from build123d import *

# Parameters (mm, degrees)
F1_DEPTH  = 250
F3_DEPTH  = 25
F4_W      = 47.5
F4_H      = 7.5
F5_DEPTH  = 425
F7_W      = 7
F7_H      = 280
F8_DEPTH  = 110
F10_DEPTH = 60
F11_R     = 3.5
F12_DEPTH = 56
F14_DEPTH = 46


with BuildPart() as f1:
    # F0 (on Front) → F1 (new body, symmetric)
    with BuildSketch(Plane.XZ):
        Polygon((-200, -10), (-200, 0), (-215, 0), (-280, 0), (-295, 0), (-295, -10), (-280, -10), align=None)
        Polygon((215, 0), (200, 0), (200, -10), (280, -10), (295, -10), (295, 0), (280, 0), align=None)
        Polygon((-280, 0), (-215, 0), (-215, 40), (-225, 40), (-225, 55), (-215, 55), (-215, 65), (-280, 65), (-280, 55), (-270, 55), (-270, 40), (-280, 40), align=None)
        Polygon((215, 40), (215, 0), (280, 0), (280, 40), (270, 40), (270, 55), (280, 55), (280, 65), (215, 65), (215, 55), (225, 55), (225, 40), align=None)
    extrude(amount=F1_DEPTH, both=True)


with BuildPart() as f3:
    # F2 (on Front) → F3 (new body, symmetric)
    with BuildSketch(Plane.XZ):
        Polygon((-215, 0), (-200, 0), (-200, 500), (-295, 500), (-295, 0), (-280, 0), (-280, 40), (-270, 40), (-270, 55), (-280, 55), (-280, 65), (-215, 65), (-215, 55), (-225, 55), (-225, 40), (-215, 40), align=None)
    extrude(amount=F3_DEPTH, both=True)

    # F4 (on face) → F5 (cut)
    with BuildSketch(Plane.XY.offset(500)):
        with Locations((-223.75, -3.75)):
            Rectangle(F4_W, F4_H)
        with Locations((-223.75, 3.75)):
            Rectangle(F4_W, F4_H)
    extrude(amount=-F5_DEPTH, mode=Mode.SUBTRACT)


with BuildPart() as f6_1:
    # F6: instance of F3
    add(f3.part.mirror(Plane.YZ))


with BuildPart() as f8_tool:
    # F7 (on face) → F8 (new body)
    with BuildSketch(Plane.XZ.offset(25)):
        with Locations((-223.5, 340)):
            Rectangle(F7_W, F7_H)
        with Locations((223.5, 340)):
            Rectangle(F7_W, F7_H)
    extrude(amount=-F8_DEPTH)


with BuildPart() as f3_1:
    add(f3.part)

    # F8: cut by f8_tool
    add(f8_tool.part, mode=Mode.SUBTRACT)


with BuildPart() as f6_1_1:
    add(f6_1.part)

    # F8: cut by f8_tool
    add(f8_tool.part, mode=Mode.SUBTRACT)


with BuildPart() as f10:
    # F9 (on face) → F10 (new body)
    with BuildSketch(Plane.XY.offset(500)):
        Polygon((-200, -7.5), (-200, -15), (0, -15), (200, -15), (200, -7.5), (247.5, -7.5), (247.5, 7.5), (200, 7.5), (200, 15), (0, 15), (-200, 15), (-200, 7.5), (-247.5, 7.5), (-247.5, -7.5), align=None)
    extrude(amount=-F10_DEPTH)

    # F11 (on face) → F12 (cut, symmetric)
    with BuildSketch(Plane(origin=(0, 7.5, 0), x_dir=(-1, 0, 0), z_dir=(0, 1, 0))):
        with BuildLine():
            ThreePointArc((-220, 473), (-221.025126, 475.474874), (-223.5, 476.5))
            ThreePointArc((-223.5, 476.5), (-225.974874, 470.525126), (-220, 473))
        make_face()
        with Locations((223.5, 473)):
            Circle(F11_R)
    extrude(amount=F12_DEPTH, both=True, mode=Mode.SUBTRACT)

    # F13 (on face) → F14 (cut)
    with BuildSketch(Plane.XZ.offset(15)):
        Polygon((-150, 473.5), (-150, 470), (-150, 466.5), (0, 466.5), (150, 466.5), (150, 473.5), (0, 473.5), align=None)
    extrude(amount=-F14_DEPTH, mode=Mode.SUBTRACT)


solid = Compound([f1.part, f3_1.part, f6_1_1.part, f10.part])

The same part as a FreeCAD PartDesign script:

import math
import FreeCAD as App
import Part
import Sketcher

V = App.Vector
Q = App.Units.Quantity


def add_polygon(sketch, points):
    """Adds a closed chain of lines whose ends are joined by coincident constraints."""
    first, n = sketch.GeometryCount, len(points)
    for a, b in zip(points, points[1:] + points[:1]):
        sketch.addGeometry(Part.LineSegment(App.Vector(*a, 0), App.Vector(*b, 0)), False)
    for i in range(n):
        sketch.addConstraint(Sketcher.Constraint("Coincident", first + i, 2, first + (i + 1) % n, 1))

doc = App.newDocument("Part")
body = doc.addObject("PartDesign::Body", "Body")
body.AllowCompound = True

# Sketch on XZ plane
sketch1 = body.newObject("Sketcher::SketchObject", "Sketch")
sketch1.AttachmentSupport = (doc.getObject("XZ_Plane"), [""])
sketch1.MapMode = "FlatFace"
add_polygon(sketch1, [(-200, -10), (-200, 0), (-215, 0), (-215, 40), (-225, 40), (-225, 55), (-215, 55), (-215, 65), (-280, 65), (-280, 55), (-270, 55), (-270, 40), (-280, 40), (-280, 0), (-295, 0), (-295, -10)])  # lines 0-15
add_polygon(sketch1, [(200, 0), (200, -10), (295, -10), (295, 0), (280, 0), (280, 40), (270, 40), (270, 55), (280, 55), (280, 65), (215, 65), (215, 55), (225, 55), (225, 40), (215, 40), (215, 0)])  # lines 16-31
sketch1.addConstraint([
    Sketcher.Constraint("Vertical", 0),
    Sketcher.Constraint("Horizontal", 1),
    Sketcher.Constraint("Vertical", 2),
    Sketcher.Constraint("Horizontal", 3),
    Sketcher.Constraint("Vertical", 4),
    Sketcher.Constraint("Horizontal", 5),
    Sketcher.Constraint("Vertical", 6),
    Sketcher.Constraint("Horizontal", 7),
    Sketcher.Constraint("Vertical", 8),
    Sketcher.Constraint("Horizontal", 9),
    Sketcher.Constraint("Vertical", 10),
    Sketcher.Constraint("Horizontal", 11),
    Sketcher.Constraint("Vertical", 12),
    Sketcher.Constraint("Horizontal", 13),
    Sketcher.Constraint("Vertical", 14),
    Sketcher.Constraint("Horizontal", 15),
    Sketcher.Constraint("Vertical", 16),
    Sketcher.Constraint("Horizontal", 17),
    Sketcher.Constraint("Vertical", 18),
    Sketcher.Constraint("Horizontal", 19),
    Sketcher.Constraint("Vertical", 20),
    Sketcher.Constraint("Horizontal", 21),
    Sketcher.Constraint("Vertical", 22),
    Sketcher.Constraint("Horizontal", 23),
    Sketcher.Constraint("Vertical", 24),
    Sketcher.Constraint("Horizontal", 25),
    Sketcher.Constraint("Vertical", 26),
    Sketcher.Constraint("Horizontal", 27),
    Sketcher.Constraint("Vertical", 28),
    Sketcher.Constraint("Horizontal", 29),
    Sketcher.Constraint("Vertical", 30),
    Sketcher.Constraint("Horizontal", 31),
    Sketcher.Constraint("Symmetric", 13, 2, 18, 2, -1, 1),
    Sketcher.Constraint("Symmetric", 1, 2, 30, 2, -1, 1),
    Sketcher.Constraint("Symmetric", 15, 2, 16, 2, -2),
    Sketcher.Constraint("Symmetric", 12, 2, 19, 2, -2),
    Sketcher.Constraint("Symmetric", 10, 2, 21, 2, -2),
    Sketcher.Constraint("Symmetric", 8, 2, 23, 2, -2),
    Sketcher.Constraint("Symmetric", 6, 2, 25, 2, -2),
    Sketcher.Constraint("Symmetric", 4, 2, 27, 2, -2),
    Sketcher.Constraint("PointOnObject", 0, 2, -1),
    Sketcher.Constraint("Horizontal", 5, 2, 8, 2),
    Sketcher.Constraint("Horizontal", 3, 2, 10, 2),
    Sketcher.Constraint("Horizontal", 21, 2, 28, 2),
    Sketcher.Constraint("Vertical", 2, 2, 5, 2),
    Sketcher.Constraint("Vertical", 8, 2, 11, 2),
    Sketcher.Constraint("Equal", 5, 9),
    Sketcher.Constraint("Equal", 1, 13),
    Sketcher.Constraint("Equal", 29, 0),
    Sketcher.Constraint("Equal", 31, 4),
    Sketcher.Constraint("Equal", 0, 6),
    Sketcher.Constraint("DistanceX", 1, 2, 1, 1, Q("15 mm")),
    Sketcher.Constraint("DistanceX", 3, 2, 3, 1, Q("10 mm")),
    Sketcher.Constraint("DistanceX", 7, 2, 7, 1, Q("65 mm")),
    Sketcher.Constraint("DistanceY", 2, 1, 2, 2, Q("40 mm")),
    Sketcher.Constraint("DistanceX", 0, 2, -1, 1, Q("200 mm")),
])
pad1 = body.newObject("PartDesign::Pad", "Pad")
pad1.Profile = sketch1
pad1.Length = 500
pad1.Midplane = True
body2 = doc.addObject("PartDesign::Body", "Body001")

# Sketch on XZ plane
sketch2 = body2.newObject("Sketcher::SketchObject", "Sketch001")
sketch2.AttachmentSupport = (doc.getObject("XZ_Plane001"), [""])
sketch2.MapMode = "FlatFace"
add_polygon(sketch2, [(-215, 0), (-200, 0), (-200, 500), (-295, 500), (-295, 0), (-280, 0), (-280, 40), (-270, 40), (-270, 55), (-280, 55), (-280, 65), (-215, 65), (-215, 55), (-225, 55), (-225, 40), (-215, 40)])  # lines 0-15
sketch2.addConstraint([
    Sketcher.Constraint("Horizontal", 0),
    Sketcher.Constraint("Vertical", 1),
    Sketcher.Constraint("Horizontal", 2),
    Sketcher.Constraint("Vertical", 3),
    Sketcher.Constraint("Horizontal", 4),
    Sketcher.Constraint("Vertical", 5),
    Sketcher.Constraint("Horizontal", 6),
    Sketcher.Constraint("Vertical", 7),
    Sketcher.Constraint("Horizontal", 8),
    Sketcher.Constraint("Vertical", 9),
    Sketcher.Constraint("Horizontal", 10),
    Sketcher.Constraint("Vertical", 11),
    Sketcher.Constraint("Horizontal", 12),
    Sketcher.Constraint("Vertical", 13),
    Sketcher.Constraint("Horizontal", 14),
    Sketcher.Constraint("Vertical", 15),
    Sketcher.Constraint("PointOnObject", 0, 2, -1),
    Sketcher.Constraint("PointOnObject", 3, 2, -1),
    Sketcher.Constraint("Horizontal", 8, 2, 11, 2),
    Sketcher.Constraint("Horizontal", 6, 2, 13, 2),
    Sketcher.Constraint("Vertical", 5, 2, 8, 2),
    Sketcher.Constraint("Vertical", 11, 2, 14, 2),
    Sketcher.Constraint("Equal", 0, 4),
    Sketcher.Constraint("Equal", 8, 12),
    Sketcher.Constraint("Equal", 4, 7),
    Sketcher.Constraint("Equal", 14, 9),
    Sketcher.Constraint("DistanceX", 0, 1, 0, 2, Q("15 mm")),
    Sketcher.Constraint("DistanceX", 2, 2, 2, 1, Q("95 mm")),
    Sketcher.Constraint("DistanceX", 6, 1, 6, 2, Q("10 mm")),
    Sketcher.Constraint("DistanceY", 1, 1, 1, 2, Q("500 mm")),
    Sketcher.Constraint("DistanceY", 5, 1, 5, 2, Q("40 mm")),
    Sketcher.Constraint("DistanceX", 0, 2, -1, 1, Q("200 mm")),
])
pad2 = body2.newObject("PartDesign::Pad", "Pad001")
pad2.Profile = sketch2
pad2.Length = 50
pad2.Midplane = True

# Sketch on XY plane
sketch3 = body2.newObject("Sketcher::SketchObject", "Sketch002")
sketch3.AttachmentSupport = (doc.getObject("XY_Plane001"), [""])
sketch3.MapMode = "FlatFace"
sketch3.AttachmentOffset = App.Placement(V(0, 0, 500), App.Rotation())
add_polygon(sketch3, [(-248, -8), (-200, -8), (-200, 8), (-248, 8)])  # lines 0-3
sketch3.addConstraint([
    Sketcher.Constraint("Horizontal", 0),
    Sketcher.Constraint("Vertical", 1),
    Sketcher.Constraint("Horizontal", 2),
    Sketcher.Constraint("Vertical", 3),
    Sketcher.Constraint("DistanceY", 1, 1, 1, 2, Q("15 mm")),
    Sketcher.Constraint("DistanceX", 0, 1, 0, 2, Q("47.5 mm")),
    Sketcher.Constraint("DistanceX", 0, 2, -1, 1, Q("200 mm")),
    Sketcher.Constraint("DistanceY", 0, 2, -1, 1, Q("7.5 mm")),
])
pocket1 = body2.newObject("PartDesign::Pocket", "Pocket")
pocket1.Profile = sketch3
pocket1.Length = 425
body3 = doc.addObject("PartDesign::Body", "Body002")
doc.recompute()

mirroring = doc.addObject("Part::Mirroring", "Mirroring")
mirroring.Source = body2
mirroring.Base = V(0, 0, 0)
mirroring.Normal = V(1, 0, 0)
body3.BaseFeature = mirroring
doc.recompute()
body4 = doc.addObject("PartDesign::Body", "Body003")
body4.AllowCompound = True

# Sketch on XZ plane
sketch4 = body4.newObject("Sketcher::SketchObject", "Sketch003")
sketch4.AttachmentSupport = (doc.getObject("XZ_Plane003"), [""])
sketch4.MapMode = "FlatFace"
sketch4.AttachmentOffset = App.Placement(V(0, 0, 25), App.Rotation())
add_polygon(sketch4, [(-227, 480), (-227, 200), (-220, 200), (-220, 480)])  # lines 0-3
add_polygon(sketch4, [(220, 480), (220, 200), (227, 200), (227, 480)])  # lines 4-7
sketch4.addConstraint([
    Sketcher.Constraint("Vertical", 0),
    Sketcher.Constraint("Horizontal", 1),
    Sketcher.Constraint("Vertical", 2),
    Sketcher.Constraint("Horizontal", 3),
    Sketcher.Constraint("Vertical", 4),
    Sketcher.Constraint("Horizontal", 5),
    Sketcher.Constraint("Vertical", 6),
    Sketcher.Constraint("Horizontal", 7),
    Sketcher.Constraint("Symmetric", 1, 2, 4, 2, -2),
    Sketcher.Constraint("Symmetric", 3, 2, 6, 2, -2),
    Sketcher.Constraint("DistanceX", 1, 1, 1, 2, Q("7 mm")),
    Sketcher.Constraint("DistanceY", 0, 2, 0, 1, Q("280 mm")),
    Sketcher.Constraint("DistanceX", 0, 2, -1, 1, Q("227 mm")),
    Sketcher.Constraint("DistanceY", -1, 1, 0, 2, Q("200 mm")),
])
pad3 = body4.newObject("PartDesign::Pad", "Pad002")
pad3.Profile = sketch4
pad3.Length = 110
pad3.Reversed = True
doc.recompute()

body5 = doc.addObject("PartDesign::Body", "Body004")
body5.BaseFeature = body4
boolean = body2.newObject("PartDesign::Boolean", "Boolean")
boolean.Type = "Cut"
boolean.addObjects([body5])
doc.recompute()

boolean2 = body3.newObject("PartDesign::Boolean", "Boolean001")
boolean2.Type = "Cut"
boolean2.addObjects([body4])
body6 = doc.addObject("PartDesign::Body", "Body005")

# Sketch on XY plane
sketch5 = body6.newObject("Sketcher::SketchObject", "Sketch004")
sketch5.AttachmentSupport = (doc.getObject("XY_Plane005"), [""])
sketch5.MapMode = "FlatFace"
sketch5.AttachmentOffset = App.Placement(V(0, 0, 500), App.Rotation())
add_polygon(sketch5, [(-200, -8), (-200, -15), (200, -15), (200, -8), (248, -8), (248, 8), (200, 8), (200, 15), (-200, 15), (-200, 8), (-248, 8), (-248, -8)])  # lines 0-11
sketch5.addConstraint([
    Sketcher.Constraint("Vertical", 0),
    Sketcher.Constraint("Horizontal", 1),
    Sketcher.Constraint("Vertical", 2),
    Sketcher.Constraint("Horizontal", 3),
    Sketcher.Constraint("Vertical", 4),
    Sketcher.Constraint("Horizontal", 5),
    Sketcher.Constraint("Vertical", 6),
    Sketcher.Constraint("Horizontal", 7),
    Sketcher.Constraint("Vertical", 8),
    Sketcher.Constraint("Horizontal", 9),
    Sketcher.Constraint("Vertical", 10),
    Sketcher.Constraint("Horizontal", 11),
    Sketcher.Constraint("Symmetric", 0, 2, 6, 2, -1, 1),
    Sketcher.Constraint("Symmetric", 2, 2, 8, 2, -1, 1),
    Sketcher.Constraint("Symmetric", 4, 2, 10, 2, -1, 1),
    Sketcher.Constraint("Symmetric", 5, 2, 8, 2, -2),
    Sketcher.Constraint("DistanceX", 1, 1, 1, 2, Q("400 mm")),
    Sketcher.Constraint("DistanceY", 4, 1, 4, 2, Q("15 mm")),
    Sketcher.Constraint("DistanceX", 3, 1, 3, 2, Q("47.5 mm")),
    Sketcher.Constraint("DistanceY", 0, 2, 0, 1, Q("7.5 mm")),
])
pad4 = body6.newObject("PartDesign::Pad", "Pad003")
pad4.Profile = sketch5
pad4.Length = 60
pad4.Reversed = True

# Sketch on XZ plane
sketch6 = body6.newObject("Sketcher::SketchObject", "Sketch005")
sketch6.AttachmentSupport = (doc.getObject("XZ_Plane005"), [""])
sketch6.MapMode = "FlatFace"
sketch6.AttachmentOffset = App.Placement(V(0, 0, -7.5), App.Rotation())
sketch6.addGeometry([
    Part.ArcOfCircle(Part.Circle(V(223.5, 473, 0), V(0, 0, 1), 3.5), math.radians(90), math.radians(180)),
    Part.ArcOfCircle(Part.Circle(V(223.5, 473, 0), V(0, 0, 1), 3.5), math.radians(180), math.radians(450)),
    Part.Circle(V(-223.5, 473, 0), V(0, 0, 1), 3.5),
], False)
sketch6.addConstraint([
    Sketcher.Constraint("Tangent", 0, 1, 1, 2),
    Sketcher.Constraint("Coincident", 1, 1, 0, 2),
    Sketcher.Constraint("Equal", 1, 2),
    Sketcher.Constraint("Symmetric", 0, 3, 2, 3, -2),
    Sketcher.Constraint("Horizontal", 2, 3, 1, 1),
    Sketcher.Constraint("Vertical", 1, 3, 0, 1),
    Sketcher.Constraint("Diameter", 2, Q("7 mm")),
    Sketcher.Constraint("DistanceY", -1, 1, 0, 3, Q("473.000001 mm")),
    Sketcher.Constraint("DistanceX", -1, 1, 1, 1, Q("220 mm")),
])
pocket2 = body6.newObject("PartDesign::Pocket", "Pocket001")
pocket2.Profile = sketch6
pocket2.Length = 112
pocket2.Midplane = True

# Sketch on XZ plane
sketch7 = body6.newObject("Sketcher::SketchObject", "Sketch006")
sketch7.AttachmentSupport = (doc.getObject("XZ_Plane005"), [""])
sketch7.MapMode = "FlatFace"
sketch7.AttachmentOffset = App.Placement(V(0, 0, 15), App.Rotation())
add_polygon(sketch7, [(-150, 474), (-150, 466), (150, 466), (150, 474)])  # lines 0-3
sketch7.addConstraint([
    Sketcher.Constraint("Vertical", 0),
    Sketcher.Constraint("Horizontal", 1),
    Sketcher.Constraint("Vertical", 2),
    Sketcher.Constraint("Horizontal", 3),
    Sketcher.Constraint("DistanceX", 1, 1, 1, 2, Q("300 mm")),
    Sketcher.Constraint("DistanceY", 0, 2, 0, 1, Q("7 mm")),
    Sketcher.Constraint("DistanceX", 0, 2, -1, 1, Q("150 mm")),
    Sketcher.Constraint("DistanceY", -1, 1, 0, 2, Q("466.5 mm")),
])
pocket3 = body6.newObject("PartDesign::Pocket", "Pocket002")
pocket3.Profile = sketch7
pocket3.Length = 46
mirroring.Visibility = False

doc.recompute()
